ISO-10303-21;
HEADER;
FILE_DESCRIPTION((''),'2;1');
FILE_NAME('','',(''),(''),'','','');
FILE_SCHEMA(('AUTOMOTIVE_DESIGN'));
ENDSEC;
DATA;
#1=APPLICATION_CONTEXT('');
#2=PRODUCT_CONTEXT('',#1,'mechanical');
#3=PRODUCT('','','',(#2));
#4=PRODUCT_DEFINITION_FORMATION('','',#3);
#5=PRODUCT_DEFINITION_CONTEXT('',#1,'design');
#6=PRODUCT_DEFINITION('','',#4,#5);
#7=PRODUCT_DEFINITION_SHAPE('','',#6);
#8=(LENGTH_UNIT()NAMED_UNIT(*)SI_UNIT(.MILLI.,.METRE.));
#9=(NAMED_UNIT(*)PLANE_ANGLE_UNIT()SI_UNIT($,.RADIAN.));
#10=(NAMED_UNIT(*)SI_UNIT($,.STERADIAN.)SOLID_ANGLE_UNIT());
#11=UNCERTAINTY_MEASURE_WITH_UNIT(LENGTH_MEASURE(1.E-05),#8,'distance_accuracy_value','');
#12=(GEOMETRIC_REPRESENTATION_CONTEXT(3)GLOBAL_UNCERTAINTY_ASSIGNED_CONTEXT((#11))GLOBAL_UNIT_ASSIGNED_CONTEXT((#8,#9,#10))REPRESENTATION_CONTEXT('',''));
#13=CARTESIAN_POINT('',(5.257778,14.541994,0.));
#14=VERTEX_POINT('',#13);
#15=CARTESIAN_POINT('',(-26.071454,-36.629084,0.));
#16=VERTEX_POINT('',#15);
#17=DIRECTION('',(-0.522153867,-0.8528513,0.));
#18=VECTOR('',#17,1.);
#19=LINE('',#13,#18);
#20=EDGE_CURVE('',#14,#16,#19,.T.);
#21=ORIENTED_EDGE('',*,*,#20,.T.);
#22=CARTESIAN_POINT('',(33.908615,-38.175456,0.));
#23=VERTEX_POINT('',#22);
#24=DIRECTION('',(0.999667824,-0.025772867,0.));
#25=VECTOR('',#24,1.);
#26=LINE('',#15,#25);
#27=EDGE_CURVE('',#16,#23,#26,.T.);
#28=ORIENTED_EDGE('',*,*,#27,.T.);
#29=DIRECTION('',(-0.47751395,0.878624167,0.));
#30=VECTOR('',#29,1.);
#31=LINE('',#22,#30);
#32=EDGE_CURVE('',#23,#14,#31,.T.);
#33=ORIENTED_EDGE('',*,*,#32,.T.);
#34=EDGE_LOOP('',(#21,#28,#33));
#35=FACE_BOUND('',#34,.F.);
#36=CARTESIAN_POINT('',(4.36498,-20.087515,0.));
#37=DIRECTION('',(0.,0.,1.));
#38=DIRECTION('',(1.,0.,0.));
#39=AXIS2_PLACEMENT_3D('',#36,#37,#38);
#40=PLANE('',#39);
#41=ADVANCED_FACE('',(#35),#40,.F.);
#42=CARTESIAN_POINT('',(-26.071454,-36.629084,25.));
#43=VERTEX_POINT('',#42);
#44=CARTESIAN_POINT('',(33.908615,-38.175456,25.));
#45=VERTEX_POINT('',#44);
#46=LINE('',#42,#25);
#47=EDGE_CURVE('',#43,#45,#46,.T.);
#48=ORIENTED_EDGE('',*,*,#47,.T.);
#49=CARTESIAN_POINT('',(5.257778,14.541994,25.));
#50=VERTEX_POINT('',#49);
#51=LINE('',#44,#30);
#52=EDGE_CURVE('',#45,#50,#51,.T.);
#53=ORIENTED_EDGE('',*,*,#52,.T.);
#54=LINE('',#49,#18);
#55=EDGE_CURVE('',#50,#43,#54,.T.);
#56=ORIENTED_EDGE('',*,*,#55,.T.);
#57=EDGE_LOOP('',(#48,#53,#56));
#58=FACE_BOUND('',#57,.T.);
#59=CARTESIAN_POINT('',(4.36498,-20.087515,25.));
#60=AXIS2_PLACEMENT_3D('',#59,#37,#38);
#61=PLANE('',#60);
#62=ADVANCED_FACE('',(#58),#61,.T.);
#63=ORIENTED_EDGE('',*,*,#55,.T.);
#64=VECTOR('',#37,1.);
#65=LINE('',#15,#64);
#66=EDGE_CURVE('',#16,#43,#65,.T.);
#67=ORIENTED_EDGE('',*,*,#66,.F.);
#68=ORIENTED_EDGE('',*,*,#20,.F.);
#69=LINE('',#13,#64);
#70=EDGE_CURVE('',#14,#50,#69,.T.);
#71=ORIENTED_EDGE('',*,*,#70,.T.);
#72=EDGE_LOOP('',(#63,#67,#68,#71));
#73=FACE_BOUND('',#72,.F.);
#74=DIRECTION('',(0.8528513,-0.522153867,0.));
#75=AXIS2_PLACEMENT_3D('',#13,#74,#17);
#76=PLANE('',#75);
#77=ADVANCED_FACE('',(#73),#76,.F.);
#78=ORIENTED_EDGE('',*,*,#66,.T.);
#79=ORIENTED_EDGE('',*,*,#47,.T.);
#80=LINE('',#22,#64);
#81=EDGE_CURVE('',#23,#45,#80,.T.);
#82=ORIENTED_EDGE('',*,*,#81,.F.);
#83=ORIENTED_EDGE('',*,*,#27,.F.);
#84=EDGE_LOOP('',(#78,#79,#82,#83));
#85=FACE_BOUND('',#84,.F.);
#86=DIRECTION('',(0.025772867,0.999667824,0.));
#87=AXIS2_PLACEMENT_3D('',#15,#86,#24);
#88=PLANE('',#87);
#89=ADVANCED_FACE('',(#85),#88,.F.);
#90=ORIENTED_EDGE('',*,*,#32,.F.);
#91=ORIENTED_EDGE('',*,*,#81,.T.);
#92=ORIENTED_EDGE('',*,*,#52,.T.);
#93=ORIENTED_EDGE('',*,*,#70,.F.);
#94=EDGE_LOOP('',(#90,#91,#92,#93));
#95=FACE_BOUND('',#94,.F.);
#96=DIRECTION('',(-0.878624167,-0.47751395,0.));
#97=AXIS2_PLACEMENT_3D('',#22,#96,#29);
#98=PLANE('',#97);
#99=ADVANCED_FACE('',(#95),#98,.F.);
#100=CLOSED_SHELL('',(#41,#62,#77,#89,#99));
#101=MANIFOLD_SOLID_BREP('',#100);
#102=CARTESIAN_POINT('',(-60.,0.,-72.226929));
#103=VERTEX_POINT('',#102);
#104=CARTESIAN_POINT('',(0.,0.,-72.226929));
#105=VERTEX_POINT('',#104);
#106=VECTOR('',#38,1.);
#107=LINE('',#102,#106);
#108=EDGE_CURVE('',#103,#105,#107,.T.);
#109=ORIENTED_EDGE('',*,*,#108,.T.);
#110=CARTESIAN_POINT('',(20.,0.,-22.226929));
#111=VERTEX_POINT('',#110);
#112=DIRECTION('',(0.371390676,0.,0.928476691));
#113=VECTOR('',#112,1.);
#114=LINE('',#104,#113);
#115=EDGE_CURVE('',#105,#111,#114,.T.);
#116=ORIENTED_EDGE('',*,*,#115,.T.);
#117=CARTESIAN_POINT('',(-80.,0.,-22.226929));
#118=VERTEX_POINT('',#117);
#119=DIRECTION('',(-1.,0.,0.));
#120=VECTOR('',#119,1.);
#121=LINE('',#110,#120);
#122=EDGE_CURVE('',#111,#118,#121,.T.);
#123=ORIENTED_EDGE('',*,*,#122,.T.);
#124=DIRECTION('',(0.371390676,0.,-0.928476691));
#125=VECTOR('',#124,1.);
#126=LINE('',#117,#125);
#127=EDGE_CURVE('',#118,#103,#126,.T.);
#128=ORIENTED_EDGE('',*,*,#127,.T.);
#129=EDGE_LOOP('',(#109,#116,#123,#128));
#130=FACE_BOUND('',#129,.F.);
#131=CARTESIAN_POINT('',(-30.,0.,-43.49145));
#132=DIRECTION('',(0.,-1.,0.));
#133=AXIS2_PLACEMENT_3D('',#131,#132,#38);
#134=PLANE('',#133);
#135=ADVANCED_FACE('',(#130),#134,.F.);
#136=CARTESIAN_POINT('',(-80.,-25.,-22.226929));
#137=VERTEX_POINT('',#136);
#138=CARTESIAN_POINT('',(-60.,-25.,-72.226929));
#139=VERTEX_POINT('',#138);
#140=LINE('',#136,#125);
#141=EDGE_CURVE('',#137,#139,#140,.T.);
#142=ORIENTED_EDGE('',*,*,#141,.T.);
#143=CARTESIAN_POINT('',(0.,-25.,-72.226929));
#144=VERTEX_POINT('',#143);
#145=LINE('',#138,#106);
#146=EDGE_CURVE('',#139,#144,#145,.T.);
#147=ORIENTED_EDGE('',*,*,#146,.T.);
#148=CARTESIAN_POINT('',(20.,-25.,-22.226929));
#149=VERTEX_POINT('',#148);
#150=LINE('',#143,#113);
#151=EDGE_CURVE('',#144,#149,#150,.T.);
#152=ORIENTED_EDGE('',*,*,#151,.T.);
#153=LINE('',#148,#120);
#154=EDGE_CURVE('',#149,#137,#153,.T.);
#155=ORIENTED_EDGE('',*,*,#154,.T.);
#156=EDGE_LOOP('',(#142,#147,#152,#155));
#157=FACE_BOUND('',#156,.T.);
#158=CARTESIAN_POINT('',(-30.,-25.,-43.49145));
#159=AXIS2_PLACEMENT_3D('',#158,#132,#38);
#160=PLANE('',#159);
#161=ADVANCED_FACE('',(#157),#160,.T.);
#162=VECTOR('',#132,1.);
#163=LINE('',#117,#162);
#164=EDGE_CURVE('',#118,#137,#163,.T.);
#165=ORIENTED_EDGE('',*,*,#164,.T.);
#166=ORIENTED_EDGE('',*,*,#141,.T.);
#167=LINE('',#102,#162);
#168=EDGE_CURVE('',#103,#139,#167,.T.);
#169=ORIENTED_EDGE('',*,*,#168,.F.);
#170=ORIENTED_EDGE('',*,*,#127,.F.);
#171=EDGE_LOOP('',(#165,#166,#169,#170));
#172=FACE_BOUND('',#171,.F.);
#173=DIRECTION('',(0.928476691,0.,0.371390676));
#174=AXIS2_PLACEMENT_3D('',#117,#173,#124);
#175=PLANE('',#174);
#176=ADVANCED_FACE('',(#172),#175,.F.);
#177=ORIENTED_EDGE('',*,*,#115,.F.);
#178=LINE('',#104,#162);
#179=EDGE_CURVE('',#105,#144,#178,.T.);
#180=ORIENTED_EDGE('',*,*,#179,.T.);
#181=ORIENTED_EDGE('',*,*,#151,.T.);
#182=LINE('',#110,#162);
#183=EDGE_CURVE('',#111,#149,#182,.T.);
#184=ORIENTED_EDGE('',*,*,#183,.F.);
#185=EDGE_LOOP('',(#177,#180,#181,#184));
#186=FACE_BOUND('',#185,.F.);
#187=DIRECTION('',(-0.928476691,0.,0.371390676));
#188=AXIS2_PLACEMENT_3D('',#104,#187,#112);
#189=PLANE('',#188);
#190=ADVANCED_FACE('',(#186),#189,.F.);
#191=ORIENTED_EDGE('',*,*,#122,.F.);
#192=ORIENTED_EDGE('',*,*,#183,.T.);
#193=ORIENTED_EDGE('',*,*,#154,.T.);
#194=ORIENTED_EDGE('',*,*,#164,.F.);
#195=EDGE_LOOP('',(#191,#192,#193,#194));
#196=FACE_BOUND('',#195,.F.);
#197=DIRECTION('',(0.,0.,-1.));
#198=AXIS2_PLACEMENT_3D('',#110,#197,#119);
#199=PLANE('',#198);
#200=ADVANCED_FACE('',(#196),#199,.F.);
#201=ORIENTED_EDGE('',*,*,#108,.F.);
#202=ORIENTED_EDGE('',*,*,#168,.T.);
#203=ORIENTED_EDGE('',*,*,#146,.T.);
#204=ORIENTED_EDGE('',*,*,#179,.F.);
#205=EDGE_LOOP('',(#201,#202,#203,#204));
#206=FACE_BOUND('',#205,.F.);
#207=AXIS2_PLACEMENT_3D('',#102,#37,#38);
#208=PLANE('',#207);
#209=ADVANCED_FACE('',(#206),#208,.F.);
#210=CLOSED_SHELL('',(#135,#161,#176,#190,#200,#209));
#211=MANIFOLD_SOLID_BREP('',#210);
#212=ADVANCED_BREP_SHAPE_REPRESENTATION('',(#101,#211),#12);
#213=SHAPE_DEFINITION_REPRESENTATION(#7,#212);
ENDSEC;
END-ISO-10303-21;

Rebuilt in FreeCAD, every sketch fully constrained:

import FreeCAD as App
import Part
import Sketcher
Q = App.Units.Quantity


def add_polygon(sketch, points):
    """Adds a closed chain of lines whose ends are joined by coincident constraints."""
    first, n = sketch.GeometryCount, len(points)
    for a, b in zip(points, points[1:] + points[:1]):
        sketch.addGeometry(Part.LineSegment(App.Vector(*a, 0), App.Vector(*b, 0)), False)
    for i in range(n):
        sketch.addConstraint(Sketcher.Constraint("Coincident", first + i, 2, first + (i + 1) % n, 1))

doc = App.newDocument("Part")
body = doc.addObject("PartDesign::Body", "Body")

sketch1 = doc.addObject("Sketcher::SketchObject", "Sketch")
body.addObject(sketch1)
sketch1.AttachmentSupport = (doc.XY_Plane, [""])
sketch1.MapMode = "FlatFace"
add_polygon(sketch1, [(5.257778, 14.541994), (-26.071454, -36.629084), (33.908615, -38.175456)])
sketch1.addConstraint([
    Sketcher.Constraint("Equal", 0, 1),
    Sketcher.Constraint("Equal", 1, 2),
    Sketcher.Constraint("Distance", 0, Q("60 mm")),
    Sketcher.Constraint("DistanceX", 0, 2, 1, 2, Q("59.980069 mm")),
    Sketcher.Constraint("DistanceX", 0, 2, -1, 1, Q("26.071454 mm")),
    Sketcher.Constraint("DistanceY", 0, 2, -1, 1, Q("36.629084 mm")),
])
pad1 = doc.addObject("PartDesign::Pad", "Pad")
body.addObject(pad1)
pad1.Profile = sketch1
pad1.Length = 25
body2 = doc.addObject("PartDesign::Body", "Body001")

sketch2 = doc.addObject("Sketcher::SketchObject", "Sketch001")
body2.addObject(sketch2)
sketch2.AttachmentSupport = (doc.getObject("XZ_Plane001"), [""])
sketch2.MapMode = "FlatFace"
add_polygon(sketch2, [(-80, -22.226929), (-60, -72.226929), (0, -72.226929), (20, -22.226929)])
sketch2.addConstraint([
    Sketcher.Constraint("Horizontal", 1),
    Sketcher.Constraint("Horizontal", 3),
    Sketcher.Constraint("PointOnObject", 1, 2, -2),
    Sketcher.Constraint("Equal", 0, 2),
    Sketcher.Constraint("DistanceX", 1, 1, 1, 2, Q("60 mm")),
    Sketcher.Constraint("DistanceX", 3, 2, 3, 1, Q("100 mm")),
    Sketcher.Constraint("DistanceY", 1, 2, 2, 2, Q("50 mm")),
    Sketcher.Constraint("DistanceY", 0, 2, -1, 1, Q("72.226929 mm")),
])
pad2 = doc.addObject("PartDesign::Pad", "Pad001")
body2.addObject(pad2)
pad2.Profile = sketch2
pad2.Length = 25

doc.recompute()
